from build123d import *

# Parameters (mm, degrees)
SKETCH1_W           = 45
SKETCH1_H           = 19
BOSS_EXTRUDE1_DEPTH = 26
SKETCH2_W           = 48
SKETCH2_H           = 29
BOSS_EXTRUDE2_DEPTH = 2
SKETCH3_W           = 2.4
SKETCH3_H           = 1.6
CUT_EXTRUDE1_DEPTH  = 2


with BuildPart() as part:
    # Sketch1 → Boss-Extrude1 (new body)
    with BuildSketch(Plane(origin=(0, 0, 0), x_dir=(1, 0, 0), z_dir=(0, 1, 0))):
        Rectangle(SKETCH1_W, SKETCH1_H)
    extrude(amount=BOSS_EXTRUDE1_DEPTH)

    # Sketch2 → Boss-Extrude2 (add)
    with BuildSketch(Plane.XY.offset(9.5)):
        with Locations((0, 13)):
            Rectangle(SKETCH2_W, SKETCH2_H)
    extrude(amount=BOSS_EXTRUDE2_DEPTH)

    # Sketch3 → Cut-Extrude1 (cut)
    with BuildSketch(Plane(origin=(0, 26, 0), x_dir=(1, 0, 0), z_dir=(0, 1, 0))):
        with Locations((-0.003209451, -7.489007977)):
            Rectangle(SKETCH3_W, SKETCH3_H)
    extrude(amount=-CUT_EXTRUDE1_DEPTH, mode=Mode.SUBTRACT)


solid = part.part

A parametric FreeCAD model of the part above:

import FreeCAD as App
import Part
import Sketcher
Q = App.Units.Quantity

doc = App.newDocument("Part")
body = doc.addObject("PartDesign::Body", "Body")

sketch1 = body.newObject("Sketcher::SketchObject", "Sketch")
sketch1.AttachmentSupport = (doc.getObject("XZ_Plane"), [""])
sketch1.MapMode = "FlatFace"
sketch1.addGeometry(Part.LineSegment(App.Vector(-22, -10, 0), App.Vector(-22, 10, 0)), False)
sketch1.addGeometry(Part.LineSegment(App.Vector(-22, 10, 0), App.Vector(22, 10, 0)), False)
sketch1.addGeometry(Part.LineSegment(App.Vector(22, 10, 0), App.Vector(22, -10, 0)), False)
sketch1.addGeometry(Part.LineSegment(App.Vector(22, -10, 0), App.Vector(-22, -10, 0)), False)
sketch1.addConstraint(Sketcher.Constraint("Coincident", 0, 2, 1, 1))
sketch1.addConstraint(Sketcher.Constraint("Coincident", 1, 2, 2, 1))
sketch1.addConstraint(Sketcher.Constraint("Coincident", 2, 2, 3, 1))
sketch1.addConstraint(Sketcher.Constraint("Coincident", 3, 2, 0, 1))
sketch1.addConstraint(Sketcher.Constraint("Vertical", 0))
sketch1.addConstraint(Sketcher.Constraint("Horizontal", 1))
sketch1.addConstraint(Sketcher.Constraint("Vertical", 2))
sketch1.addConstraint(Sketcher.Constraint("Horizontal", 3))
sketch1.addConstraint(Sketcher.Constraint("Symmetric", 0, 2, 2, 2, -1, 1))
sketch1.addConstraint(Sketcher.Constraint("DistanceX", 1, 1, 1, 2, Q("45 mm")))
sketch1.addConstraint(Sketcher.Constraint("DistanceY", 0, 1, 0, 2, Q("19 mm")))
pad1 = body.newObject("PartDesign::Pad", "Pad")
pad1.Profile = sketch1
pad1.Length = 26
pad1.Reversed = True

sketch2 = body.newObject("Sketcher::SketchObject", "Sketch001")
sketch2.AttachmentSupport = (doc.getObject("XY_Plane"), [""])
sketch2.MapMode = "FlatFace"
sketch2.AttachmentOffset = App.Placement(App.Vector(0, 0, 9.5), App.Rotation())
sketch2.addGeometry(Part.LineSegment(App.Vector(-24, 28, 0), App.Vector(-24, -2, 0)), False)
sketch2.addGeometry(Part.LineSegment(App.Vector(-24, -2, 0), App.Vector(24, -2, 0)), False)
sketch2.addGeometry(Part.LineSegment(App.Vector(24, -2, 0), App.Vector(24, 28, 0)), False)
sketch2.addGeometry(Part.LineSegment(App.Vector(24, 28, 0), App.Vector(-24, 28, 0)), False)
sketch2.addConstraint(Sketcher.Constraint("Coincident", 0, 2, 1, 1))
sketch2.addConstraint(Sketcher.Constraint("Coincident", 1, 2, 2, 1))
sketch2.addConstraint(Sketcher.Constraint("Coincident", 2, 2, 3, 1))
sketch2.addConstraint(Sketcher.Constraint("Coincident", 3, 2, 0, 1))
sketch2.addConstraint(Sketcher.Constraint("Vertical", 0))
sketch2.addConstraint(Sketcher.Constraint("Horizontal", 1))
sketch2.addConstraint(Sketcher.Constraint("Vertical", 2))
sketch2.addConstraint(Sketcher.Constraint("Horizontal", 3))
sketch2.addConstraint(Sketcher.Constraint("DistanceX", 1, 1, 1, 2, Q("48 mm")))
sketch2.addConstraint(Sketcher.Constraint("DistanceY", 0, 2, 0, 1, Q("29 mm")))
sketch2.addConstraint(Sketcher.Constraint("DistanceX", 0, 2, -1, 1, Q("24 mm")))
sketch2.addConstraint(Sketcher.Constraint("DistanceY", 0, 2, -1, 1, Q("1.5 mm")))
pad2 = body.newObject("PartDesign::Pad", "Pad001")
pad2.Profile = sketch2
pad2.Length = 2

sketch3 = body.newObject("Sketcher::SketchObject", "Sketch002")
sketch3.AttachmentSupport = (doc.getObject("XZ_Plane"), [""])
sketch3.MapMode = "FlatFace"
sketch3.AttachmentOffset = App.Placement(App.Vector(0, 0, -26), App.Rotation())
sketch3.addGeometry(Part.LineSegment(App.Vector(-1.2, 6.7, 0), App.Vector(-1.2, 8.3, 0)), False)
sketch3.addGeometry(Part.LineSegment(App.Vector(-1.2, 8.3, 0), App.Vector(1.2, 8.3, 0)), False)
sketch3.addGeometry(Part.LineSegment(App.Vector(1.2, 8.3, 0), App.Vector(1.2, 6.7, 0)), False)
sketch3.addGeometry(Part.LineSegment(App.Vector(1.2, 6.7, 0), App.Vector(-1.2, 6.7, 0)), False)
sketch3.addConstraint(Sketcher.Constraint("Coincident", 0, 2, 1, 1))
sketch3.addConstraint(Sketcher.Constraint("Coincident", 1, 2, 2, 1))
sketch3.addConstraint(Sketcher.Constraint("Coincident", 2, 2, 3, 1))
sketch3.addConstraint(Sketcher.Constraint("Coincident", 3, 2, 0, 1))
sketch3.addConstraint(Sketcher.Constraint("Vertical", 0))
sketch3.addConstraint(Sketcher.Constraint("Horizontal", 1))
sketch3.addConstraint(Sketcher.Constraint("Vertical", 2))
sketch3.addConstraint(Sketcher.Constraint("Horizontal", 3))
sketch3.addConstraint(Sketcher.Constraint("DistanceX", 1, 1, 1, 2, Q("2.4 mm")))
sketch3.addConstraint(Sketcher.Constraint("DistanceY", 0, 1, 0, 2, Q("1.6 mm")))
sketch3.addConstraint(Sketcher.Constraint("DistanceX", 0, 2, -1, 1, Q("1.203209 mm")))
sketch3.addConstraint(Sketcher.Constraint("DistanceY", -1, 1, 0, 2, Q("8.289008 mm")))
pocket1 = body.newObject("PartDesign::Pocket", "Pocket")
pocket1.Profile = sketch3
pocket1.Length = 2
pocket1.Reversed = True

doc.recompute()
